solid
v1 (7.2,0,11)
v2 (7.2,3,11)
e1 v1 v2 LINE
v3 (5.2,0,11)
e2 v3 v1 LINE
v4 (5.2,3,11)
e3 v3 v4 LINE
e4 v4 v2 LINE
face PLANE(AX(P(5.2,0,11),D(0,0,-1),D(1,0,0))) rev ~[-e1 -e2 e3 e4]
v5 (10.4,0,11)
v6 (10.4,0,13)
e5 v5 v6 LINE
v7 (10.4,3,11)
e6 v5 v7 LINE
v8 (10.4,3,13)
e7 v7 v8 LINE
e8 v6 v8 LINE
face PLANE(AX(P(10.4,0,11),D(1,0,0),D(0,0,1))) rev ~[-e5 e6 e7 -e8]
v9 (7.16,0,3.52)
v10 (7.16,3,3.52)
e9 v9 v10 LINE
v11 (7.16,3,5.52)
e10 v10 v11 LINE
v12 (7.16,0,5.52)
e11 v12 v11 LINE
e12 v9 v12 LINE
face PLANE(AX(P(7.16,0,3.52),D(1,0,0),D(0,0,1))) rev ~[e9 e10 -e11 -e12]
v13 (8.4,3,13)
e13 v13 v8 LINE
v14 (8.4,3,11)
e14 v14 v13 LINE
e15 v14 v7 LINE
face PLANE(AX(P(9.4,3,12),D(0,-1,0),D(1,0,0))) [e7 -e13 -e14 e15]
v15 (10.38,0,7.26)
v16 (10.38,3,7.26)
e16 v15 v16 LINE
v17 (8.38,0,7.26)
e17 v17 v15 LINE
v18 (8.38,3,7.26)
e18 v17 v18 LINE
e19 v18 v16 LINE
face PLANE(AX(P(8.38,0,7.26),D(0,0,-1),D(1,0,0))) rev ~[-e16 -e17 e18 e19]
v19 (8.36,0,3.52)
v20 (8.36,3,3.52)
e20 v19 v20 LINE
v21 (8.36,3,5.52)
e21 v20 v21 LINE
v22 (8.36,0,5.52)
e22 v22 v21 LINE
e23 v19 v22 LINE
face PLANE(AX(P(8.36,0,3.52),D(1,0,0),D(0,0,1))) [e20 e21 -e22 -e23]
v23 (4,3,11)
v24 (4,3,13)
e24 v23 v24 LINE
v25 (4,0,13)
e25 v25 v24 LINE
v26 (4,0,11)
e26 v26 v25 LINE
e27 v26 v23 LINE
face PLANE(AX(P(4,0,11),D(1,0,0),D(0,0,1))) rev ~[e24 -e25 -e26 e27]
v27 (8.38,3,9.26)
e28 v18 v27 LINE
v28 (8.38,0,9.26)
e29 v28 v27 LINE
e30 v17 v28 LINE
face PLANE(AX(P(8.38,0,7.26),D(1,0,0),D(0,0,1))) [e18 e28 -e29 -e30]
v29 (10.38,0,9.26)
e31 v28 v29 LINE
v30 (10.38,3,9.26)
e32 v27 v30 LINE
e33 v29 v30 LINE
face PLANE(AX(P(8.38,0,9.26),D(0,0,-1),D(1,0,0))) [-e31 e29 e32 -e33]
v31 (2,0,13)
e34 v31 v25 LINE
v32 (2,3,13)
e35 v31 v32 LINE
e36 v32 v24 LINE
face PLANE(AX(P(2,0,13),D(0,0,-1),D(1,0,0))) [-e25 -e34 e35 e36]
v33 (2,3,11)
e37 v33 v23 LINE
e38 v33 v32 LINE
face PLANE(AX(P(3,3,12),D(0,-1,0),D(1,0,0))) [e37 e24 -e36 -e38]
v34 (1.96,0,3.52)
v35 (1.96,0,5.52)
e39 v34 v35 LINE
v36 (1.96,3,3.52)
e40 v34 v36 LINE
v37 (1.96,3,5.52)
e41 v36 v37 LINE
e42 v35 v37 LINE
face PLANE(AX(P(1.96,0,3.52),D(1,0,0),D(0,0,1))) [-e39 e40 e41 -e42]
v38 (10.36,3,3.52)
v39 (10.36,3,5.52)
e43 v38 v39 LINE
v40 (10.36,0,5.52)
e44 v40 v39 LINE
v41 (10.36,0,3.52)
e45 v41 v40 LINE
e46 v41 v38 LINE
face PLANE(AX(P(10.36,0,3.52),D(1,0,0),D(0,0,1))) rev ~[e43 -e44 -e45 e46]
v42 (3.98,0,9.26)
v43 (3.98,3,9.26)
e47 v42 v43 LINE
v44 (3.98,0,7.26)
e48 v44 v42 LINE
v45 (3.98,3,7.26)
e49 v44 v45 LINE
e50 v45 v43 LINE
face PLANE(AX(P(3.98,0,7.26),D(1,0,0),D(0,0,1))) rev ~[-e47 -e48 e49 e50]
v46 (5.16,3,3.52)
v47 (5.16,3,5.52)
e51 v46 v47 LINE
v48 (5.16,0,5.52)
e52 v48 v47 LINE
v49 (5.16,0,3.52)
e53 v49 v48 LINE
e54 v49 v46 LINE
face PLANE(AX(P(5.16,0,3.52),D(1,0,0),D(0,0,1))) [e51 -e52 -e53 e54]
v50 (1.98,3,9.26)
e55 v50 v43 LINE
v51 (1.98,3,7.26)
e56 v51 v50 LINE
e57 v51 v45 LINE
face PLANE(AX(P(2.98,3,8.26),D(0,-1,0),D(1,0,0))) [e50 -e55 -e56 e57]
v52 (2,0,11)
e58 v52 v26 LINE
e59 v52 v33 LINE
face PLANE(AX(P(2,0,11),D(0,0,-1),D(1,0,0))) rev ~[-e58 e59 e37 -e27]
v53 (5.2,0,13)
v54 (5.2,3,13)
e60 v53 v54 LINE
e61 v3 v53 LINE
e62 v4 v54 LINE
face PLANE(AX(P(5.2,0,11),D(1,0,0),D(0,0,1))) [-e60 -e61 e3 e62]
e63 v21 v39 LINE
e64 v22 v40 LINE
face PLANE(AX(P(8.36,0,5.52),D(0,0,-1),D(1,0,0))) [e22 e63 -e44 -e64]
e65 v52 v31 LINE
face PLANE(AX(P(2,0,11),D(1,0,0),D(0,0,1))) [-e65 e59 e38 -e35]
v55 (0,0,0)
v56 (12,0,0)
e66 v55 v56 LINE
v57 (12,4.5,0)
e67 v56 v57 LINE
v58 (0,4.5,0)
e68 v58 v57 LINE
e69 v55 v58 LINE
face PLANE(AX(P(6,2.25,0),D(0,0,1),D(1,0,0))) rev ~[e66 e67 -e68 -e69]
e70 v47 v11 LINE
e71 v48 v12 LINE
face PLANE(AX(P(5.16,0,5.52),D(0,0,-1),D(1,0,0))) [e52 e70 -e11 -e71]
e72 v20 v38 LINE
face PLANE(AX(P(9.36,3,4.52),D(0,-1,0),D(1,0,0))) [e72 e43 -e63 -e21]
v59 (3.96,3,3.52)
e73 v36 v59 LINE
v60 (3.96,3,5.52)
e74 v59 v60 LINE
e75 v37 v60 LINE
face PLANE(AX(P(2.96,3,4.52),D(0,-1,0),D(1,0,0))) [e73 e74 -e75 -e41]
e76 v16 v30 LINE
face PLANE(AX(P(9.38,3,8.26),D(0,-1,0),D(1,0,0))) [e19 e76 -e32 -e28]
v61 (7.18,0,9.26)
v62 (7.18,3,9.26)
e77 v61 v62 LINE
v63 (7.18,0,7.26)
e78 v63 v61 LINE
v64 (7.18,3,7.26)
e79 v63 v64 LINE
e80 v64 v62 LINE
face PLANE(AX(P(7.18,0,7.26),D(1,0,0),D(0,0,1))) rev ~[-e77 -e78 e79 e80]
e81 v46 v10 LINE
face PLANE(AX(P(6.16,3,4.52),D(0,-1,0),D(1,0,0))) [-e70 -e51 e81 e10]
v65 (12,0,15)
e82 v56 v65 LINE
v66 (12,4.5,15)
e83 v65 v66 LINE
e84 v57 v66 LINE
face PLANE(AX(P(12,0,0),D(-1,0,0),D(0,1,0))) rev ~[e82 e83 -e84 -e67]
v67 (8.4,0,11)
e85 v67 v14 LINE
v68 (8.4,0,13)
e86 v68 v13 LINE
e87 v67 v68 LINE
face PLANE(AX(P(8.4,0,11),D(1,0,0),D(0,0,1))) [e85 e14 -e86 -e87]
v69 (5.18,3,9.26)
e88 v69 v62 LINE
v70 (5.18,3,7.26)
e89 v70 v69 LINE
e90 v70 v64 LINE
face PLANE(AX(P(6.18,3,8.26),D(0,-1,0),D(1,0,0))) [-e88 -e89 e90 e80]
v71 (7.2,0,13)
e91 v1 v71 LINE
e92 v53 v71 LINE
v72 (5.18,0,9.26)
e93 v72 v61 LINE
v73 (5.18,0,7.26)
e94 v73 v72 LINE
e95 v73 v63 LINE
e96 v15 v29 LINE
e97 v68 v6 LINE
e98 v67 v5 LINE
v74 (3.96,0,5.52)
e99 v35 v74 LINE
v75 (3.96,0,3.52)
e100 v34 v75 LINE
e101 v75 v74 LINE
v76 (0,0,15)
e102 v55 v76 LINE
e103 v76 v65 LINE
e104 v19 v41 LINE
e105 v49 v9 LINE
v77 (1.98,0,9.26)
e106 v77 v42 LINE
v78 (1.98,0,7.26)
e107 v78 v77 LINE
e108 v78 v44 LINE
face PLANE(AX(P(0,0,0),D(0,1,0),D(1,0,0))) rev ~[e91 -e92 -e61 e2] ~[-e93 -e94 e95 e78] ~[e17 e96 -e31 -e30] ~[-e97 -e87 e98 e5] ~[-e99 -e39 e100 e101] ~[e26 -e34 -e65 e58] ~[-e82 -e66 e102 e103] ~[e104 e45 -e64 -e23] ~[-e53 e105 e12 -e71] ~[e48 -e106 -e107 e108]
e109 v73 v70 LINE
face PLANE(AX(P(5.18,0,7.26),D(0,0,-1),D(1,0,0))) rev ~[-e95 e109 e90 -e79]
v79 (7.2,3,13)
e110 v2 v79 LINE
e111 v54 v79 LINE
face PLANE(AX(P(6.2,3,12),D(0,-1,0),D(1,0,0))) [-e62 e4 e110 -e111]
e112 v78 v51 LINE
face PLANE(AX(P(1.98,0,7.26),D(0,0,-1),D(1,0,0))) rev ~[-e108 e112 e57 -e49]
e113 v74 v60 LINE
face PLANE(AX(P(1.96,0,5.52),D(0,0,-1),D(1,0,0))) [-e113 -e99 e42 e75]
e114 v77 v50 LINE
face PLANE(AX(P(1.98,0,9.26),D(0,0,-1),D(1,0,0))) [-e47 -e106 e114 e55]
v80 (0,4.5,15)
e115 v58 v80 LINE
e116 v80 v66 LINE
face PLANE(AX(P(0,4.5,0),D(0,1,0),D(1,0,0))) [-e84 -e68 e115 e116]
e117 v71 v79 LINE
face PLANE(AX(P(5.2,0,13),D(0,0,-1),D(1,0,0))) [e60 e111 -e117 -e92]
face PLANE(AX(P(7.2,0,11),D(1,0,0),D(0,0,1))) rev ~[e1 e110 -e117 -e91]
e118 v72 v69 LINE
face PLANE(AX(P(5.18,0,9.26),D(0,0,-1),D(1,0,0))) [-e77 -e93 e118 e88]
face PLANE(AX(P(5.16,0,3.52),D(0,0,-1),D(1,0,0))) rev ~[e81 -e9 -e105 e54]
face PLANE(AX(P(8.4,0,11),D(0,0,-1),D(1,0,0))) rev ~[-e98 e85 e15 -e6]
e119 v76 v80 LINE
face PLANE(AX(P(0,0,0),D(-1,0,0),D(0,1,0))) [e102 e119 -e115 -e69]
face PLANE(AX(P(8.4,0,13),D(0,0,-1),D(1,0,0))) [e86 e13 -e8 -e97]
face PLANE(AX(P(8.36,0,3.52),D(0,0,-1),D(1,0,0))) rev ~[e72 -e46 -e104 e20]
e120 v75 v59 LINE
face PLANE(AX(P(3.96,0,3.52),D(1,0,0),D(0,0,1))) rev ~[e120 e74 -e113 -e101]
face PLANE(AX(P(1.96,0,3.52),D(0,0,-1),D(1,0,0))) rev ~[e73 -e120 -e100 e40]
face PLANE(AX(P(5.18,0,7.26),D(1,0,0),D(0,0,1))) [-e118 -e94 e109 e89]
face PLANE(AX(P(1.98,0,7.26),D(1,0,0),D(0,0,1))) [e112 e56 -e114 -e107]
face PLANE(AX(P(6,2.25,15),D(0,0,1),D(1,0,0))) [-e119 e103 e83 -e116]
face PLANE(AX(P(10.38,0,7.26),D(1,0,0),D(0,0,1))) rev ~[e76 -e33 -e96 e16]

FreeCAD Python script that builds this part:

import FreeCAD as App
import Part
import Sketcher
from FreeCAD import Vector
Q = App.Units.Quantity


def add_polygon(sketch, points):
    """Adds a closed chain of lines whose ends are joined by coincident constraints."""
    first, n = sketch.GeometryCount, len(points)
    for a, b in zip(points, points[1:] + points[:1]):
        sketch.addGeometry(Part.LineSegment(App.Vector(*a, 0), App.Vector(*b, 0)), False)
    for i in range(n):
        sketch.addConstraint(Sketcher.Constraint("Coincident", first + i, 2, first + (i + 1) % n, 1))

doc = App.newDocument("Part")
params = doc.addObject("Spreadsheet::Sheet", "Params")
for row, (alias, value) in enumerate([
    ("sketch1_width", "12 mm"),
    ("sketch1_height", "4.5 mm"),
    ("pad1_length", "15 mm"),
    ("sketch2_width", "2 mm"),
    ("pocket1_length", "3 mm"),
], start=1):
    params.set(f"A{row}", alias)
    params.set(f"B{row}", "=" + value)
    params.setAlias(f"B{row}", alias)

body = doc.addObject("PartDesign::Body", "Body")

# Sketch on XY plane
sketch1 = body.newObject("Sketcher::SketchObject", "Sketch")
sketch1.AttachmentSupport = (doc.getObject("XY_Plane"), [""])
sketch1.MapMode = "FlatFace"
add_polygon(sketch1, [(0, 4.5), (0, 0), (12, 0), (12, 4.5)])  # lines 0-3
sketch1.addConstraint([
    Sketcher.Constraint("Vertical", 0),
    Sketcher.Constraint("Horizontal", 1),
    Sketcher.Constraint("Vertical", 2),
    Sketcher.Constraint("Horizontal", 3),
    Sketcher.Constraint("Coincident", 0, 2, -1, 1),
    Sketcher.Constraint("DistanceX", 1, 1, 1, 2, Q("12 mm")),
    Sketcher.Constraint("DistanceY", 0, 2, 0, 1, Q("4.5 mm")),
])
sketch1.setExpression("Constraints[9]", "Params.sketch1_width")
sketch1.setExpression("Constraints[10]", "Params.sketch1_height")
pad1 = body.newObject("PartDesign::Pad", "Pad")
pad1.Profile = sketch1
pad1.setExpression("Length", "Params.pad1_length")

# Sketch on XZ plane
sketch2 = body.newObject("Sketcher::SketchObject", "Sketch001")
sketch2.AttachmentSupport = (doc.getObject("XZ_Plane"), [""])
sketch2.MapMode = "FlatFace"
add_polygon(sketch2, [(2, 13), (2, 11), (4, 11), (4, 13)])  # lines 0-3
add_polygon(sketch2, [(5.2, 13), (5.2, 11), (7.2, 11), (7.2, 13)])  # lines 4-7
add_polygon(sketch2, [(8.4, 13), (8.4, 11), (10.4, 11), (10.4, 13)])  # lines 8-11
add_polygon(sketch2, [(2, 9.3), (2, 7.3), (4, 7.3), (4, 9.3)])  # lines 12-15
add_polygon(sketch2, [(5.2, 9.3), (5.2, 7.3), (7.2, 7.3), (7.2, 9.3)])  # lines 16-19
add_polygon(sketch2, [(8.4, 9.3), (8.4, 7.3), (10.4, 7.3), (10.4, 9.3)])  # lines 20-23
add_polygon(sketch2, [(2, 5.5), (2, 3.5), (4, 3.5), (4, 5.5)])  # lines 24-27
add_polygon(sketch2, [(5.2, 5.5), (5.2, 3.5), (7.2, 3.5), (7.2, 5.5)])  # lines 28-31
add_polygon(sketch2, [(8.4, 5.5), (8.4, 3.5), (10.4, 3.5), (10.4, 5.5)])  # lines 32-35
sketch2.addConstraint([
    Sketcher.Constraint("Vertical", 0),
    Sketcher.Constraint("Horizontal", 1),
    Sketcher.Constraint("Vertical", 2),
    Sketcher.Constraint("Horizontal", 3),
    Sketcher.Constraint("Vertical", 4),
    Sketcher.Constraint("Horizontal", 5),
    Sketcher.Constraint("Vertical", 6),
    Sketcher.Constraint("Horizontal", 7),
    Sketcher.Constraint("Vertical", 8),
    Sketcher.Constraint("Horizontal", 9),
    Sketcher.Constraint("Vertical", 10),
    Sketcher.Constraint("Horizontal", 11),
    Sketcher.Constraint("Vertical", 12),
    Sketcher.Constraint("Horizontal", 13),
    Sketcher.Constraint("Vertical", 14),
    Sketcher.Constraint("Horizontal", 15),
    Sketcher.Constraint("Vertical", 16),
    Sketcher.Constraint("Horizontal", 17),
    Sketcher.Constraint("Vertical", 18),
    Sketcher.Constraint("Horizontal", 19),
    Sketcher.Constraint("Vertical", 20),
    Sketcher.Constraint("Horizontal", 21),
    Sketcher.Constraint("Vertical", 22),
    Sketcher.Constraint("Horizontal", 23),
    Sketcher.Constraint("Vertical", 24),
    Sketcher.Constraint("Horizontal", 25),
    Sketcher.Constraint("Vertical", 26),
    Sketcher.Constraint("Horizontal", 27),
    Sketcher.Constraint("Vertical", 28),
    Sketcher.Constraint("Horizontal", 29),
    Sketcher.Constraint("Vertical", 30),
    Sketcher.Constraint("Horizontal", 31),
    Sketcher.Constraint("Vertical", 32),
    Sketcher.Constraint("Horizontal", 33),
    Sketcher.Constraint("Vertical", 34),
    Sketcher.Constraint("Horizontal", 35),
    Sketcher.Constraint("Horizontal", 1, 2, 4, 2),
    Sketcher.Constraint("Horizontal", 3, 2, 6, 2),
    Sketcher.Constraint("Horizontal", 5, 2, 8, 2),
    Sketcher.Constraint("Horizontal", 7, 2, 10, 2),
    Sketcher.Constraint("Horizontal", 13, 2, 16, 2),
    Sketcher.Constraint("Horizontal", 15, 2, 18, 2),
    Sketcher.Constraint("Horizontal", 17, 2, 20, 2),
    Sketcher.Constraint("Horizontal", 19, 2, 22, 2),
    Sketcher.Constraint("Horizontal", 25, 2, 28, 2),
    Sketcher.Constraint("Horizontal", 27, 2, 30, 2),
    Sketcher.Constraint("Horizontal", 29, 2, 32, 2),
    Sketcher.Constraint("Horizontal", 31, 2, 34, 2),
    Sketcher.Constraint("Equal", 3, 5),
    Sketcher.Constraint("Equal", 7, 9),
    Sketcher.Constraint("Equal", 11, 13),
    Sketcher.Constraint("Equal", 15, 17),
    Sketcher.Constraint("Equal", 19, 21),
    Sketcher.Constraint("Equal", 23, 25),
    Sketcher.Constraint("Equal", 27, 29),
    Sketcher.Constraint("Equal", 31, 33),
    Sketcher.Constraint("Equal", 35, 0),
    Sketcher.Constraint("Equal", 10, 12),
    Sketcher.Constraint("Equal", 22, 24),
    Sketcher.Constraint("DistanceX", 1, 1, 1, 2, Q("2 mm")),
    Sketcher.Constraint("DistanceX", -1, 1, 0, 2, Q("2 mm")),
    Sketcher.Constraint("DistanceY", -1, 1, 0, 2, Q("11 mm")),
    Sketcher.Constraint("DistanceX", -1, 1, 4, 2, Q("5.2 mm")),
    Sketcher.Constraint("DistanceX", -1, 1, 8, 2, Q("8.4 mm")),
    Sketcher.Constraint("DistanceX", 13, 2, 16, 2, Q("1.2 mm")),
    Sketcher.Constraint("DistanceX", 17, 2, 20, 2, Q("1.2 mm")),
    Sketcher.Constraint("DistanceX", 25, 2, 28, 2, Q("1.2 mm")),
    Sketcher.Constraint("DistanceX", 29, 2, 32, 2, Q("1.2 mm")),
    Sketcher.Constraint("DistanceX", -1, 1, 12, 2, Q("1.98 mm")),
    Sketcher.Constraint("DistanceY", -1, 1, 12, 2, Q("7.26 mm")),
    Sketcher.Constraint("DistanceX", -1, 1, 24, 2, Q("1.96 mm")),
    Sketcher.Constraint("DistanceY", -1, 1, 24, 2, Q("3.52 mm")),
])
sketch2.setExpression("Constraints[95]", "Params.sketch2_width")
pocket1 = body.newObject("PartDesign::Pocket", "Pocket")
pocket1.Profile = sketch2
pocket1.setExpression("Length", "Params.pocket1_length")

doc.recompute()
